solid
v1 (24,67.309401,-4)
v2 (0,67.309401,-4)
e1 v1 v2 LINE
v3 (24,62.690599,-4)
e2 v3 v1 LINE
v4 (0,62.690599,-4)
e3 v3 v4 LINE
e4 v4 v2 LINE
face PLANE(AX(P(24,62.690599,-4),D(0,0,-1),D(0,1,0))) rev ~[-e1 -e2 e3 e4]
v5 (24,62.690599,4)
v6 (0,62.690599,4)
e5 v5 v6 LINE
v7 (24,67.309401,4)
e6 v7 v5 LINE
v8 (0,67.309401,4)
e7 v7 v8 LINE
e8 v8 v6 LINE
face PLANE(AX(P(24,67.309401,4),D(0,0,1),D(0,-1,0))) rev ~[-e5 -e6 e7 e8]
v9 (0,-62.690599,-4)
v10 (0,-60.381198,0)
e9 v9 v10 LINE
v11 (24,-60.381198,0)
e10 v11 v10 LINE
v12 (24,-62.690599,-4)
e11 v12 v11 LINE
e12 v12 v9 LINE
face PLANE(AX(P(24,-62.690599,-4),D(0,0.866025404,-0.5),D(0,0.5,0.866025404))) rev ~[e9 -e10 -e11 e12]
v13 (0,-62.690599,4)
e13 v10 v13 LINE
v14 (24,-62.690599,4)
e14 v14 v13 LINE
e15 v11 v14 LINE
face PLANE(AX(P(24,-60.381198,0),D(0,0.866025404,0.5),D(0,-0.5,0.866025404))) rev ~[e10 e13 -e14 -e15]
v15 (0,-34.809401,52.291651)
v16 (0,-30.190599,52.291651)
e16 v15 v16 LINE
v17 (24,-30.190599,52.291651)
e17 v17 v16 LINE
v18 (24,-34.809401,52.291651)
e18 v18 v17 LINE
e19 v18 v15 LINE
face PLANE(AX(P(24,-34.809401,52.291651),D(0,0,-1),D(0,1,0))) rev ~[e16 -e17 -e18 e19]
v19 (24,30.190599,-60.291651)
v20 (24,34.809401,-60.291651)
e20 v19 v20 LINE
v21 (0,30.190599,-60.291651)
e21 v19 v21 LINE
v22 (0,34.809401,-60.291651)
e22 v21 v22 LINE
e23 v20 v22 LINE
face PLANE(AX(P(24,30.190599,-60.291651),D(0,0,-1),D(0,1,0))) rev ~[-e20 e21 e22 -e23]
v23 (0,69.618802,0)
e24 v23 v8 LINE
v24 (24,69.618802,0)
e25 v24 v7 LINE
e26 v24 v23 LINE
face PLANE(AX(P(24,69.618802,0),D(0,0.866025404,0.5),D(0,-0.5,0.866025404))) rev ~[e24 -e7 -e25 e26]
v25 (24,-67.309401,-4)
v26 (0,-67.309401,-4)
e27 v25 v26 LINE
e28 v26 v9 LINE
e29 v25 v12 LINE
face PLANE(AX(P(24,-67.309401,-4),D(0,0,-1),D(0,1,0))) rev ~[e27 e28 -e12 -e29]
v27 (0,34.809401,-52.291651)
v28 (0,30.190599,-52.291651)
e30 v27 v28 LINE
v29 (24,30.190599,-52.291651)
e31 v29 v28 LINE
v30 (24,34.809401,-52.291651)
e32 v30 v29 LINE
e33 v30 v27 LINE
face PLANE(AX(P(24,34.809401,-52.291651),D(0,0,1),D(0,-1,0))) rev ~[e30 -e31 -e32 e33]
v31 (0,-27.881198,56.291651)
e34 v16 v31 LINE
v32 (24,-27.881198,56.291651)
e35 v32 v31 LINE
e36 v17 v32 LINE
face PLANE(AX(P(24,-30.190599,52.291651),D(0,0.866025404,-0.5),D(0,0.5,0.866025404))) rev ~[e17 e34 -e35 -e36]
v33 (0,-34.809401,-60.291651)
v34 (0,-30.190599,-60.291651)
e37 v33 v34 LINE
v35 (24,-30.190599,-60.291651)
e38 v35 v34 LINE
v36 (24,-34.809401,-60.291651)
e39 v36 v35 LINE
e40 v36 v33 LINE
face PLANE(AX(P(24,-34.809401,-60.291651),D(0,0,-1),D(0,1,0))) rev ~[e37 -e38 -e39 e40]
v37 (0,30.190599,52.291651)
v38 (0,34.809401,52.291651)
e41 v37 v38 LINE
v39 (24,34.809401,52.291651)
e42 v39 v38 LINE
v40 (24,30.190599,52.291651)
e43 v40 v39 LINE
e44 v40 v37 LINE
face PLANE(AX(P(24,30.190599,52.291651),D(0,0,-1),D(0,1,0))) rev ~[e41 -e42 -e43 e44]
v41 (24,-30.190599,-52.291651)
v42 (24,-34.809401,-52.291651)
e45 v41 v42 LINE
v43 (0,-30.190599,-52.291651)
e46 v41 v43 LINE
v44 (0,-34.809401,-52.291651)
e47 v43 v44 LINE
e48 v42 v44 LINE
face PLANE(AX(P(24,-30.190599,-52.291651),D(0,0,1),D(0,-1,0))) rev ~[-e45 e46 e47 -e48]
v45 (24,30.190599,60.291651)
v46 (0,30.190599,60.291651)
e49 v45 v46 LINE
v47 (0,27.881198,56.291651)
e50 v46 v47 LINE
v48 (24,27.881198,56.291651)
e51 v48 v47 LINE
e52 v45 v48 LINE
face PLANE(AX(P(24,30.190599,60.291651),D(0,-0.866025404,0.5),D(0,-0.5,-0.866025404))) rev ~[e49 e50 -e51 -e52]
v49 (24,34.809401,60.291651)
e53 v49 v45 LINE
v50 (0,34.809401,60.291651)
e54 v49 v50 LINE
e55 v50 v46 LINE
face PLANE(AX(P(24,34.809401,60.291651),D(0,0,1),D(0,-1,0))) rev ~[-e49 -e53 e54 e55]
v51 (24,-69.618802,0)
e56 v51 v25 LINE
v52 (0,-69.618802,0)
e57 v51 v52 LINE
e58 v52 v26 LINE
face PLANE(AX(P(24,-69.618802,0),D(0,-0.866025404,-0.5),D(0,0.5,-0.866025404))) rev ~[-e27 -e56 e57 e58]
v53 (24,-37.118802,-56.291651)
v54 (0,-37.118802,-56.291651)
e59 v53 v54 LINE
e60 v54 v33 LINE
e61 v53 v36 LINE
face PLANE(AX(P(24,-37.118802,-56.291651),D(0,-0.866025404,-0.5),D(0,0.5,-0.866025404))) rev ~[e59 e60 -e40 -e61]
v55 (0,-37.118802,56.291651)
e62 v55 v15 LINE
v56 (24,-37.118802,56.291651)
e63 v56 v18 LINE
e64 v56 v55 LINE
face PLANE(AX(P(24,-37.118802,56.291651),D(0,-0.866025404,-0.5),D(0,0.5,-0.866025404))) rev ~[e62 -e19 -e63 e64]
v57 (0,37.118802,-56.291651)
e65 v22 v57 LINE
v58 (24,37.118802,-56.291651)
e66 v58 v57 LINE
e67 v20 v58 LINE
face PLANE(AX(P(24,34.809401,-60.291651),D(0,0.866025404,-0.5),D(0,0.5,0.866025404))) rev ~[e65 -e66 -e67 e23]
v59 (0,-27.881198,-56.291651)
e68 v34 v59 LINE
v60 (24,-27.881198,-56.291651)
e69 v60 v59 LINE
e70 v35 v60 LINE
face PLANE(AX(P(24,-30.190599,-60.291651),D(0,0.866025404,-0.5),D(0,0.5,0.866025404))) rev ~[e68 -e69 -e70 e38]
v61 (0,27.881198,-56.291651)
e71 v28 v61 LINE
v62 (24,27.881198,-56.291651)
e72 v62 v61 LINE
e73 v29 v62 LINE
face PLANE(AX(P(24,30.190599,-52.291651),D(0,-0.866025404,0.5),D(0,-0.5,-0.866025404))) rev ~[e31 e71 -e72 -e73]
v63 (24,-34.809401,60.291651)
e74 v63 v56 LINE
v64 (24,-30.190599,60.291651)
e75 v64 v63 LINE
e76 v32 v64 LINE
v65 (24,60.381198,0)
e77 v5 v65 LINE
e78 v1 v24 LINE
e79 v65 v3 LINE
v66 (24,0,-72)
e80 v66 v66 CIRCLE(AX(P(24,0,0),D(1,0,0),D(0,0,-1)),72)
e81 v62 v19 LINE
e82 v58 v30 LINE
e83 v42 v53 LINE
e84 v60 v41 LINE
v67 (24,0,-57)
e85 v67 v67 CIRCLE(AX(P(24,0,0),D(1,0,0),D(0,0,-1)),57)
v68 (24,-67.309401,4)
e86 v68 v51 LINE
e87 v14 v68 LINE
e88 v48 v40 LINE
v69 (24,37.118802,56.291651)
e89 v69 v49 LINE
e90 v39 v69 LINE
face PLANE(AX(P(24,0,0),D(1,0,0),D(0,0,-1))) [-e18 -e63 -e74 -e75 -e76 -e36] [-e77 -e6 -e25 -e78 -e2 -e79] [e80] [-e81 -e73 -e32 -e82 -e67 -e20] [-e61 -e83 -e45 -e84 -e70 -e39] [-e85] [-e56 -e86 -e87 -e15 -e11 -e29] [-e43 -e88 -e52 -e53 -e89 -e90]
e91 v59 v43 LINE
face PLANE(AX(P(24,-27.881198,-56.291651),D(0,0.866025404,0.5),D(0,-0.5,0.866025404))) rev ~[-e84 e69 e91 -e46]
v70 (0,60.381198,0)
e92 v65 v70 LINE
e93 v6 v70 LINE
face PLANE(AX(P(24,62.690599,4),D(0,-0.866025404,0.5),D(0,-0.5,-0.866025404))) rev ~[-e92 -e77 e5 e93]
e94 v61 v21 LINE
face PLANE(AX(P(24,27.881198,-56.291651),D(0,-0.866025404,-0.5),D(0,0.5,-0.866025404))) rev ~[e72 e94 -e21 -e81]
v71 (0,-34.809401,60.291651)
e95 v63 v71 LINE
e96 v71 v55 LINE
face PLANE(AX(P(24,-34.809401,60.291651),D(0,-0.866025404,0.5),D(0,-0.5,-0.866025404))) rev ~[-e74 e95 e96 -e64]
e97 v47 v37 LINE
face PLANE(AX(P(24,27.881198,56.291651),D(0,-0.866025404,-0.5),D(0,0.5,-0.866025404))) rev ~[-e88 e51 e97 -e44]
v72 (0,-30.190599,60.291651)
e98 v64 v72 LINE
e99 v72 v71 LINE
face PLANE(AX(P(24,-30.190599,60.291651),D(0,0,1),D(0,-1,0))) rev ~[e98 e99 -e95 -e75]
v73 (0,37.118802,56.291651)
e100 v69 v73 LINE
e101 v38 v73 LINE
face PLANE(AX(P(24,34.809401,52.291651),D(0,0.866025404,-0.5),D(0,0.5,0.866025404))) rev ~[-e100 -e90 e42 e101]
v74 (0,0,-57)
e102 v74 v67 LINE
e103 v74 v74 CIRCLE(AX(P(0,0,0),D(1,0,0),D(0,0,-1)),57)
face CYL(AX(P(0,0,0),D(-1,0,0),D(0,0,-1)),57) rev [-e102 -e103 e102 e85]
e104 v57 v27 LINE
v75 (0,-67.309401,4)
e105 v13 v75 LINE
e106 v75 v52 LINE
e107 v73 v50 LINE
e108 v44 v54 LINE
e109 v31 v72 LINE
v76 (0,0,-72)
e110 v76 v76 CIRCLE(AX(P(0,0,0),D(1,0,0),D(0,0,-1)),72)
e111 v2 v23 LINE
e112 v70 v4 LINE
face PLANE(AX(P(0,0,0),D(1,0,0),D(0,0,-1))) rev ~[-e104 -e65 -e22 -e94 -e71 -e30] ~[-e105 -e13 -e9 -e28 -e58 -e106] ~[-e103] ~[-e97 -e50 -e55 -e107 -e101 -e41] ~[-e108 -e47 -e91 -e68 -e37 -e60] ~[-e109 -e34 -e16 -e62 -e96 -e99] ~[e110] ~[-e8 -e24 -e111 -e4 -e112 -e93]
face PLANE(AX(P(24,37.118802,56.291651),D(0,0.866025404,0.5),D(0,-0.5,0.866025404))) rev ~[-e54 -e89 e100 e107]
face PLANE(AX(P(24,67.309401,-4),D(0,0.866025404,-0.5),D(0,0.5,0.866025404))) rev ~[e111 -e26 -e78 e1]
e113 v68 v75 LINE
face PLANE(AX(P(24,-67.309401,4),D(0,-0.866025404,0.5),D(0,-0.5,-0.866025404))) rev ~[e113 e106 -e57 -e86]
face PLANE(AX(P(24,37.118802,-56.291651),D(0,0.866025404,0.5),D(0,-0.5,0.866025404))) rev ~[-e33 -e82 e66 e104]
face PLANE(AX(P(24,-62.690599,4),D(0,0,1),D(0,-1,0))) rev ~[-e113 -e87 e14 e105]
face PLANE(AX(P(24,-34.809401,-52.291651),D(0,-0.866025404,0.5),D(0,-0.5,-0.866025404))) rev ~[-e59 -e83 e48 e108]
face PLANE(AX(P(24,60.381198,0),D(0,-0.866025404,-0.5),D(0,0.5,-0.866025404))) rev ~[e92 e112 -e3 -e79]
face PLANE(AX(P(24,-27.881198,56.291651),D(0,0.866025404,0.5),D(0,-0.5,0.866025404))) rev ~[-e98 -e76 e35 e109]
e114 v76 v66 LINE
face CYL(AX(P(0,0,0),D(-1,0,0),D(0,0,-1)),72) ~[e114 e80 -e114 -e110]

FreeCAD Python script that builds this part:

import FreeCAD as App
import Part
import Sketcher
from FreeCAD import Vector
Q = App.Units.Quantity


def add_polygon(sketch, points):
    """Adds a closed chain of lines whose ends are joined by coincident constraints."""
    first, n = sketch.GeometryCount, len(points)
    for a, b in zip(points, points[1:] + points[:1]):
        sketch.addGeometry(Part.LineSegment(App.Vector(*a, 0), App.Vector(*b, 0)), False)
    for i in range(n):
        sketch.addConstraint(Sketcher.Constraint("Coincident", first + i, 2, first + (i + 1) % n, 1))

doc = App.newDocument("Part")
params = doc.addObject("Spreadsheet::Sheet", "Params")
for row, (alias, value) in enumerate([
    ("sketch1_diameter", "144 mm"),
    ("sketch1_diameter2", "114 mm"),
    ("pad1_length", "24 mm"),
    ("pocket1_length", "24 mm"),
], start=1):
    params.set(f"A{row}", alias)
    params.set(f"B{row}", "=" + value)
    params.setAlias(f"B{row}", alias)

body = doc.addObject("PartDesign::Body", "Body")

sketch1 = doc.addObject("Sketcher::SketchObject", "Sketch")
body.addObject(sketch1)
sketch1.AttachmentSupport = (doc.YZ_Plane, [""])
sketch1.MapMode = "FlatFace"
sketch1.addGeometry([
    Part.Circle(Vector(0, 0, 0), Vector(0, 0, 1), 72),
    Part.Circle(Vector(0, 0, 0), Vector(0, 0, 1), 57),
], False)
sketch1.addConstraint([
    Sketcher.Constraint("Coincident", 0, 3, -1, 1),
    Sketcher.Constraint("Coincident", 1, 3, -1, 1),
    Sketcher.Constraint("Diameter", 0, Q("144 mm")),
    Sketcher.Constraint("Diameter", 1, Q("114 mm")),
])
sketch1.setExpression("Constraints[2]", "Params.sketch1_diameter")
sketch1.setExpression("Constraints[3]", "Params.sketch1_diameter2")
pad1 = doc.addObject("PartDesign::Pad", "Pad")
body.addObject(pad1)
pad1.Profile = sketch1
pad1.setExpression("Length", "Params.pad1_length")

sketch2 = doc.addObject("Sketcher::SketchObject", "Sketch001")
body.addObject(sketch2)
sketch2.AttachmentSupport = (doc.YZ_Plane, [""])
sketch2.MapMode = "FlatFace"
sketch2.AttachmentOffset = App.Placement(Vector(0, 0, 24), App.Rotation())
add_polygon(sketch2, [(30.2, -52.3), (27.9, -56.3), (30.2, -60.3), (34.8, -60.3), (37.1, -56.3), (34.8, -52.3)])
add_polygon(sketch2, [(60.4, 0), (62.7, -4), (67.3, -4), (69.6, 0), (67.3, 4), (62.7, 4)])
add_polygon(sketch2, [(-30.2, -52.3), (-34.8, -52.3), (-37.1, -56.3), (-34.8, -60.3), (-30.2, -60.3), (-27.9, -56.3)])
add_polygon(sketch2, [(-60.4, 0), (-62.7, 4), (-67.3, 4), (-69.6, 0), (-67.3, -4), (-62.7, -4)])
add_polygon(sketch2, [(-30.2, 52.3), (-27.9, 56.3), (-30.2, 60.3), (-34.8, 60.3), (-37.1, 56.3), (-34.8, 52.3)])
add_polygon(sketch2, [(30.2, 52.3), (34.8, 52.3), (37.1, 56.3), (34.8, 60.3), (30.2, 60.3), (27.9, 56.3)])
sketch2.addConstraint([
    Sketcher.Constraint("Horizontal", 2),
    Sketcher.Constraint("Horizontal", 5),
    Sketcher.Constraint("Horizontal", 7),
    Sketcher.Constraint("Horizontal", 10),
    Sketcher.Constraint("Horizontal", 12),
    Sketcher.Constraint("Horizontal", 15),
    Sketcher.Constraint("Horizontal", 19),
    Sketcher.Constraint("Horizontal", 22),
    Sketcher.Constraint("Horizontal", 26),
    Sketcher.Constraint("Horizontal", 29),
    Sketcher.Constraint("Horizontal", 30),
    Sketcher.Constraint("Horizontal", 33),
    Sketcher.Constraint("Symmetric", 6, 2, 18, 2, -1, 1),
    Sketcher.Constraint("Symmetric", 8, 2, 20, 2, -1, 1),
    Sketcher.Constraint("Symmetric", 9, 2, 21, 2, -1, 1),
    Sketcher.Constraint("Symmetric", 11, 2, 23, 2, -1, 1),
    Sketcher.Constraint("Symmetric", 0, 2, 24, 2, -1, 1),
    Sketcher.Constraint("Symmetric", 1, 2, 25, 2, -1, 1),
    Sketcher.Constraint("Symmetric", 3, 2, 27, 2, -1, 1),
    Sketcher.Constraint("Symmetric", 4, 2, 28, 2, -1, 1),
    Sketcher.Constraint("Symmetric", 12, 2, 30, 2, -1, 1),
    Sketcher.Constraint("Symmetric", 13, 2, 31, 2, -1, 1),
    Sketcher.Constraint("Symmetric", 14, 2, 32, 2, -1, 1),
    Sketcher.Constraint("Symmetric", 16, 2, 34, 2, -1, 1),
    Sketcher.Constraint("Symmetric", 4, 2, 12, 2, -2),
    Sketcher.Constraint("Symmetric", 3, 2, 13, 2, -2),
    Sketcher.Constraint("Symmetric", 2, 2, 14, 2, -2),
    Sketcher.Constraint("Symmetric", 0, 2, 16, 2, -2),
    Sketcher.Constraint("Symmetric", 10, 2, 18, 2, -2),
    Sketcher.Constraint("PointOnObject", 8, 2, -1),
    Sketcher.Constraint("PointOnObject", 11, 2, -1),
    Sketcher.Constraint("Parallel", 0, 3),
    Sketcher.Constraint("Parallel", 1, 4),
    Sketcher.Constraint("Parallel", 4, 6),
    Sketcher.Constraint("Parallel", 3, 8),
    Sketcher.Constraint("Parallel", 6, 9),
    Sketcher.Constraint("Parallel", 8, 11),
    Sketcher.Constraint("Parallel", 13, 16),
    Sketcher.Constraint("Parallel", 14, 17),
    Sketcher.Constraint("Parallel", 16, 20),
    Sketcher.Constraint("Parallel", 20, 23),
    Sketcher.Constraint("Parallel", 23, 24),
    Sketcher.Constraint("Parallel", 24, 27),
    Sketcher.Constraint("Parallel", 31, 34),
    Sketcher.Constraint("Parallel", 32, 35),
    Sketcher.Constraint("Horizontal", 0, 2, 3, 2),
    Sketcher.Constraint("Vertical", 2, 2, 4, 2),
    Sketcher.Constraint("Equal", 5, 7),
    Sketcher.Constraint("Equal", 4, 6),
    Sketcher.Constraint("Angle", 0, Q("-120 deg")),
    Sketcher.Constraint("DistanceY", 6, 2, -1, 1, Q("4 mm")),
    Sketcher.Constraint("DistanceX", 12, 2, 5, 2, Q("65 mm")),
    Sketcher.Constraint("DistanceX", 5, 2, 6, 2, Q("32.5 mm")),
    Sketcher.Constraint("DistanceX", -1, 1, 1, 2, Q("30.190599 mm")),
    Sketcher.Constraint("DistanceY", 0, 2, -1, 1, Q("56.291651 mm")),
])
pocket1 = doc.addObject("PartDesign::Pocket", "Pocket")
body.addObject(pocket1)
pocket1.Profile = sketch2
pocket1.setExpression("Length", "Params.pocket1_length")

doc.recompute()
